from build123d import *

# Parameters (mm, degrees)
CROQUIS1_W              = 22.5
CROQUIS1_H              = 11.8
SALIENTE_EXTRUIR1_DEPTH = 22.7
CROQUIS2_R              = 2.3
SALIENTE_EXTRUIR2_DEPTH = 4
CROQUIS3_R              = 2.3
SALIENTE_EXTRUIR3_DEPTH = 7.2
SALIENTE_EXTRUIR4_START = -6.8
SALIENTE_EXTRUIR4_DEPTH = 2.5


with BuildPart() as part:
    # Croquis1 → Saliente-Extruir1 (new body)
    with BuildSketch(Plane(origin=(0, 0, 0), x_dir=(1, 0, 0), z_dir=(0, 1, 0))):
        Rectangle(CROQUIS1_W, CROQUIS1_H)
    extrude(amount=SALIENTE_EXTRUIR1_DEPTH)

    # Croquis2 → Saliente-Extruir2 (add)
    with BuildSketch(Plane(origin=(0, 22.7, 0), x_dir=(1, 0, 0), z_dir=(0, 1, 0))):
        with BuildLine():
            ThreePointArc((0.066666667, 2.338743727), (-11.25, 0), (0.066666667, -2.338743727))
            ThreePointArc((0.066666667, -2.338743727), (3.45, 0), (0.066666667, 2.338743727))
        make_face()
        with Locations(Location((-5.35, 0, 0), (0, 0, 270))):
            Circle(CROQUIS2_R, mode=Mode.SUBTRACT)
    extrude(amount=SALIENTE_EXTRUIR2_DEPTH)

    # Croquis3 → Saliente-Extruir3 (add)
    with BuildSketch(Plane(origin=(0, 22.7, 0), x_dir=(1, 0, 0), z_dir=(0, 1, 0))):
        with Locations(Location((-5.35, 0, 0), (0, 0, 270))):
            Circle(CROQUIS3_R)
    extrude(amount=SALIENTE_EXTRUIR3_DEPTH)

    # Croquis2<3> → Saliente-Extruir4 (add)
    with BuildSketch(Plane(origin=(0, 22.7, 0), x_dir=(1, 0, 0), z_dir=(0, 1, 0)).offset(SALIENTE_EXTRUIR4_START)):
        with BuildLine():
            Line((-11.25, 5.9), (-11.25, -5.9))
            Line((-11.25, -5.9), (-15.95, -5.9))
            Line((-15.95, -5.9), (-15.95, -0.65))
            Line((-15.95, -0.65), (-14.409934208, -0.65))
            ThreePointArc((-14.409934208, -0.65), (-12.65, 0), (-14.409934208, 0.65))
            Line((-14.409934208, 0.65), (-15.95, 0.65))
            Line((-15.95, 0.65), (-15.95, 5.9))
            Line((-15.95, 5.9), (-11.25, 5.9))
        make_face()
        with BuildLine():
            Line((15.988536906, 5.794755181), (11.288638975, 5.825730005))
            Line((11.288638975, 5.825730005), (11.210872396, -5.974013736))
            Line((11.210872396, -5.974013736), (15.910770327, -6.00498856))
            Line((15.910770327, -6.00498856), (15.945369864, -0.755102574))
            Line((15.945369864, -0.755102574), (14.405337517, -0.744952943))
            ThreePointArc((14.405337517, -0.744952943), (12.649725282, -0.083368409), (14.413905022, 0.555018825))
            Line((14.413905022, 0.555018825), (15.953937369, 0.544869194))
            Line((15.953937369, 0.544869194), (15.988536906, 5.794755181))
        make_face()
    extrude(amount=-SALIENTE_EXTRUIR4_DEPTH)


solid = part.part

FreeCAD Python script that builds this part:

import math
import FreeCAD as App
import Part
import Sketcher
Q = App.Units.Quantity


def add_polygon(sketch, points):
    """Adds a closed chain of lines whose ends are joined by coincident constraints."""
    first, n = sketch.GeometryCount, len(points)
    for a, b in zip(points, points[1:] + points[:1]):
        sketch.addGeometry(Part.LineSegment(App.Vector(*a, 0), App.Vector(*b, 0)), False)
    for i in range(n):
        sketch.addConstraint(Sketcher.Constraint("Coincident", first + i, 2, first + (i + 1) % n, 1))

doc = App.newDocument("Part")
body = doc.addObject("PartDesign::Body", "Body")

# Sketch on XZ plane
sketch1 = body.newObject("Sketcher::SketchObject", "Sketch")
sketch1.AttachmentSupport = (doc.getObject("XZ_Plane"), [""])
sketch1.MapMode = "FlatFace"
add_polygon(sketch1, [(-11.25, -5.9), (-11.25, 5.9), (11.25, 5.9), (11.25, -5.9)])  # lines 0-3
sketch1.addConstraint([
    Sketcher.Constraint("Vertical", 0),
    Sketcher.Constraint("Horizontal", 1),
    Sketcher.Constraint("Vertical", 2),
    Sketcher.Constraint("Horizontal", 3),
    Sketcher.Constraint("Symmetric", 0, 2, 2, 2, -1, 1),
    Sketcher.Constraint("DistanceX", 1, 1, 1, 2, Q("22.5 mm")),
    Sketcher.Constraint("DistanceY", 0, 1, 0, 2, Q("11.8 mm")),
])
pad1 = body.newObject("PartDesign::Pad", "Pad")
pad1.Profile = sketch1
pad1.Length = 22.7
pad1.Reversed = True

# Sketch on XZ plane
sketch2 = body.newObject("Sketcher::SketchObject", "Sketch001")
sketch2.AttachmentSupport = (doc.getObject("XZ_Plane"), [""])
sketch2.MapMode = "FlatFace"
sketch2.AttachmentOffset = App.Placement(App.Vector(0, 0, -22.7), App.Rotation())
sketch2.addGeometry([
    Part.ArcOfCircle(Part.Circle(App.Vector(-5.35, 0, 0), App.Vector(0, 0, 1), 5.9), math.radians(23.353145), math.radians(336.646855)),
    Part.ArcOfCircle(Part.Circle(App.Vector(0.95, 0, 0), App.Vector(0, 0, 1), 2.5), math.radians(-110.691333), math.radians(110.691333)),
    Part.Circle(App.Vector(-5.35, 0, 0), App.Vector(0, 0, 1), 2.3),
], False)
sketch2.addConstraint([
    Sketcher.Constraint("Coincident", 0, 1, 1, 2),
    Sketcher.Constraint("Coincident", 1, 1, 0, 2),
    Sketcher.Constraint("Coincident", 2, 3, 0, 3),
    Sketcher.Constraint("Symmetric", 0, 1, 1, 1, -1),
    Sketcher.Constraint("Diameter", 2, Q("4.6 mm")),
    Sketcher.Constraint("Radius", 0, Q("5.9 mm")),
    Sketcher.Constraint("Radius", 1, Q("2.5 mm")),
    Sketcher.Constraint("DistanceX", 0, 3, 1, 3, Q("6.3 mm")),
    Sketcher.Constraint("DistanceX", 0, 3, -1, 1, Q("5.35 mm")),
])
pad2 = body.newObject("PartDesign::Pad", "Pad001")
pad2.Profile = sketch2
pad2.Length = 4
pad2.Reversed = True

# Sketch on XZ plane
sketch3 = body.newObject("Sketcher::SketchObject", "Sketch002")
sketch3.AttachmentSupport = (doc.getObject("XZ_Plane"), [""])
sketch3.MapMode = "FlatFace"
sketch3.AttachmentOffset = App.Placement(App.Vector(0, 0, -22.7), App.Rotation())
sketch3.addGeometry(Part.Circle(App.Vector(-5.35, 0, 0), App.Vector(0, 0, 1), 2.3), False)
sketch3.addConstraint([
    Sketcher.Constraint("PointOnObject", 0, 3, -1),
    Sketcher.Constraint("Diameter", 0, Q("4.6 mm")),
    Sketcher.Constraint("DistanceX", 0, 3, -1, 1, Q("5.35 mm")),
])
pad3 = body.newObject("PartDesign::Pad", "Pad002")
pad3.Profile = sketch3
pad3.Length = 7.2
pad3.Reversed = True

# Sketch on XZ plane
sketch4 = body.newObject("Sketcher::SketchObject", "Sketch003")
sketch4.AttachmentSupport = (doc.getObject("XZ_Plane"), [""])
sketch4.MapMode = "FlatFace"
sketch4.AttachmentOffset = App.Placement(App.Vector(0, 0, -15.9), App.Rotation())
sketch4.addGeometry([
    Part.LineSegment(App.Vector(-11.25, 5.9, 0), App.Vector(-11.25, -5.9, 0)),  # 0
    Part.LineSegment(App.Vector(-11.25, -5.9, 0), App.Vector(-15.95, -5.9, 0)),  # 1
    Part.LineSegment(App.Vector(-15.95, -5.9, 0), App.Vector(-15.95, -0.65, 0)),  # 2
    Part.LineSegment(App.Vector(-15.95, -0.65, 0), App.Vector(-14.409934, -0.65, 0)),  # 3
    Part.ArcOfCircle(Part.Circle(App.Vector(-13.65, 0, 0), App.Vector(0, 0, 1), 1), math.radians(-139.458398), math.radians(139.458398)),  # 4
    Part.LineSegment(App.Vector(-14.409934, 0.65, 0), App.Vector(-15.95, 0.65, 0)),  # 5
    Part.LineSegment(App.Vector(-15.95, 0.65, 0), App.Vector(-15.95, 5.9, 0)),  # 6
    Part.LineSegment(App.Vector(-15.95, 5.9, 0), App.Vector(-11.25, 5.9, 0)),  # 7
    Part.LineSegment(App.Vector(15.988537, -5.794755, 0), App.Vector(11.288639, -5.82573, 0)),  # 8
    Part.LineSegment(App.Vector(11.288639, -5.82573, 0), App.Vector(11.210872, 5.974014, 0)),  # 9
    Part.LineSegment(App.Vector(11.210872, 5.974014, 0), App.Vector(15.91077, 6.004989, 0)),  # 10
    Part.LineSegment(App.Vector(15.91077, 6.004989, 0), App.Vector(15.94537, 0.755103, 0)),  # 11
    Part.LineSegment(App.Vector(15.94537, 0.755103, 0), App.Vector(14.405338, 0.744953, 0)),  # 12
    Part.ArcOfCircle(Part.Circle(App.Vector(13.649704, 0.089959, 0), App.Vector(0, 0, 1), 1), math.radians(40.919206), math.radians(319.836002)),  # 13
    Part.LineSegment(App.Vector(14.413905, -0.555019, 0), App.Vector(15.953937, -0.544869, 0)),  # 14
    Part.LineSegment(App.Vector(15.953937, -0.544869, 0), App.Vector(15.988537, -5.794755, 0)),  # 15
], False)
sketch4.addConstraint([
    Sketcher.Constraint("Coincident", 0, 2, 1, 1),
    Sketcher.Constraint("Coincident", 1, 2, 2, 1),
    Sketcher.Constraint("Coincident", 2, 2, 3, 1),
    Sketcher.Constraint("Coincident", 3, 2, 4, 1),
    Sketcher.Constraint("Coincident", 4, 2, 5, 1),
    Sketcher.Constraint("Coincident", 5, 2, 6, 1),
    Sketcher.Constraint("Coincident", 6, 2, 7, 1),
    Sketcher.Constraint("Coincident", 7, 2, 0, 1),
    Sketcher.Constraint("Coincident", 8, 2, 9, 1),
    Sketcher.Constraint("Coincident", 9, 2, 10, 1),
    Sketcher.Constraint("Coincident", 10, 2, 11, 1),
    Sketcher.Constraint("Coincident", 11, 2, 12, 1),
    Sketcher.Constraint("Coincident", 12, 2, 13, 1),
    Sketcher.Constraint("Coincident", 13, 2, 14, 1),
    Sketcher.Constraint("Coincident", 14, 2, 15, 1),
    Sketcher.Constraint("Coincident", 15, 2, 8, 1),
    Sketcher.Constraint("Vertical", 0),
    Sketcher.Constraint("Horizontal", 1),
    Sketcher.Constraint("Vertical", 2),
    Sketcher.Constraint("Horizontal", 3),
    Sketcher.Constraint("Horizontal", 5),
    Sketcher.Constraint("Vertical", 6),
    Sketcher.Constraint("Horizontal", 7),
    Sketcher.Constraint("Equal", 4, 13),
    Sketcher.Constraint("Symmetric", 3, 2, 4, 2, -1),
    Sketcher.Constraint("Symmetric", 1, 2, 6, 2, -1),
    Sketcher.Constraint("Perpendicular", 8, 9),
    Sketcher.Constraint("Perpendicular", 9, 10),
    Sketcher.Constraint("Perpendicular", 10, 11),
    Sketcher.Constraint("Perpendicular", 11, 12),
    Sketcher.Constraint("Parallel", 12, 14),
    Sketcher.Constraint("Perpendicular", 14, 15),
    Sketcher.Constraint("Equal", 8, 10),
    Sketcher.Constraint("Equal", 12, 14),
    Sketcher.Constraint("Equal", 11, 15),
    Sketcher.Constraint("Radius", 4, Q("1 mm")),
    Sketcher.Constraint("DistanceX", 1, 2, 1, 1, Q("4.7 mm")),
    Sketcher.Constraint("DistanceY", 0, 2, 0, 1, Q("11.8 mm")),
    Sketcher.Constraint("Distance", 8, Q("4.7 mm")),
    Sketcher.Constraint("Distance", 9, Q("11.8 mm")),
    Sketcher.Constraint("DistanceY", 2, 1, 2, 2, Q("5.25 mm")),
    Sketcher.Constraint("DistanceX", 4, 3, 0, 2, Q("2.4 mm")),
    Sketcher.Constraint("Distance", 11, Q("5.25 mm")),
    Sketcher.Constraint("DistanceX", 4, 3, -1, 1, Q("13.65 mm")),
    Sketcher.Constraint("DistanceX", 10, 2, 11, 2, Q("0.0346 mm")),
    Sketcher.Constraint("DistanceX", 8, 2, 12, 2, Q("3.116699 mm")),
    Sketcher.Constraint("DistanceY", -1, 1, 13, 3, Q("0.089959 mm")),
    Sketcher.Constraint("DistanceX", -1, 1, 8, 2, Q("11.288639 mm")),
])
pad4 = body.newObject("PartDesign::Pad", "Pad003")
pad4.Profile = sketch4
pad4.Length = 2.5

doc.recompute()
